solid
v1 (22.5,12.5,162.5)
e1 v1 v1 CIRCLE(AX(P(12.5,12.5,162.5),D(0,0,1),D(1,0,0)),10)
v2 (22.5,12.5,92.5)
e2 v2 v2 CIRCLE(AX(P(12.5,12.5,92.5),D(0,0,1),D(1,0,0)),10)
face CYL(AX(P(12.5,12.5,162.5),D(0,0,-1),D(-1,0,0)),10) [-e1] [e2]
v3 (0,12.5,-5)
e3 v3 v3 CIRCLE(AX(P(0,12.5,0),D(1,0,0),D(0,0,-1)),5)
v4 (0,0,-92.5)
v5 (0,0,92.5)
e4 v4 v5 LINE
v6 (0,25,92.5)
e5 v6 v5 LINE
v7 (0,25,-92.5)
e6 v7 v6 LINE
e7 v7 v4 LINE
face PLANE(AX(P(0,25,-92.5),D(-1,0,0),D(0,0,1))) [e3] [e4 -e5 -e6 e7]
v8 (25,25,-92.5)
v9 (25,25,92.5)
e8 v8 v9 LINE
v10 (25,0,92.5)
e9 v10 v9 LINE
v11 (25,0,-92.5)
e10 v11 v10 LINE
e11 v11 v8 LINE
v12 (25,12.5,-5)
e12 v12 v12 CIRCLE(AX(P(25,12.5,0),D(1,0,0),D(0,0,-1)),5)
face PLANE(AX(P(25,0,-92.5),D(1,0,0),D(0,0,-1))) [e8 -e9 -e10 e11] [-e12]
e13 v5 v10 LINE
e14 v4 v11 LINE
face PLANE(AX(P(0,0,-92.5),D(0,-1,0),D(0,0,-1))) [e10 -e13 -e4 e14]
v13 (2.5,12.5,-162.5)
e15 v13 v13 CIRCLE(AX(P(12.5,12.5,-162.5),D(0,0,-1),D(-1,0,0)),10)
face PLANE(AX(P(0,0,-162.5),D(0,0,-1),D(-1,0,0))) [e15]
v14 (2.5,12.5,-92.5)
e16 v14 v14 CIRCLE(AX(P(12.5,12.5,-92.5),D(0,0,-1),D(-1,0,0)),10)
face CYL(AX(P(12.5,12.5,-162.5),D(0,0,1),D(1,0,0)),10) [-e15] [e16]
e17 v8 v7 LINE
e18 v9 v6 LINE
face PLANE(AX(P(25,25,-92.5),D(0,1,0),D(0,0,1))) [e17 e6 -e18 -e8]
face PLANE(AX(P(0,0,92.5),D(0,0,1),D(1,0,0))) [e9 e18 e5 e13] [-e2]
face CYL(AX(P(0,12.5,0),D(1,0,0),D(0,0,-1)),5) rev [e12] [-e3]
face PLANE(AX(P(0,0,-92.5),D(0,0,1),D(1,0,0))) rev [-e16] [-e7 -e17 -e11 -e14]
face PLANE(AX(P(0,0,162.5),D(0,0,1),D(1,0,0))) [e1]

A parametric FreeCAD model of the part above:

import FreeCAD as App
import Part
import Sketcher
from FreeCAD import Vector


def add_polygon(sketch, points):
    """Adds a closed chain of lines whose ends are joined by coincident constraints."""
    first, n = sketch.GeometryCount, len(points)
    for a, b in zip(points, points[1:] + points[:1]):
        sketch.addGeometry(Part.LineSegment(App.Vector(*a, 0), App.Vector(*b, 0)), False)
    for i in range(n):
        sketch.addConstraint(Sketcher.Constraint("Coincident", first + i, 2, first + (i + 1) % n, 1))

doc = App.newDocument("Part")
body = doc.addObject("PartDesign::Body", "Body")

# Sketch on XY plane
sketch1 = body.newObject("Sketcher::SketchObject", "Sketch")
sketch1.AttachmentSupport = (doc.getObject("XY_Plane"), [""])
sketch1.MapMode = "FlatFace"
add_polygon(sketch1, [(0, 25), (0, 0), (25, 0), (25, 25)])  # lines 0-3
sketch1.addConstraint(Sketcher.Constraint("Vertical", 0))
sketch1.addConstraint(Sketcher.Constraint("Horizontal", 1))
sketch1.addConstraint(Sketcher.Constraint("Vertical", 2))
sketch1.addConstraint(Sketcher.Constraint("Horizontal", 3))
sketch1.addConstraint(Sketcher.Constraint("Coincident", 0, 2, -1, 1))
sketch1.addConstraint(Sketcher.Constraint("Equal", 3, 0))
sketch1.addConstraint(Sketcher.Constraint("DistanceX", 1, 1, 1, 2, 25.0))
pad1 = body.newObject("PartDesign::Pad", "Pad")
pad1.Profile = sketch1
pad1.Type = "TwoLengths"
pad1.Length = 92.5
pad1.Length2 = 92.5

# Sketch on YZ plane
sketch2 = body.newObject("Sketcher::SketchObject", "Sketch001")
sketch2.AttachmentSupport = (doc.getObject("YZ_Plane"), [""])
sketch2.MapMode = "FlatFace"
sketch2.AttachmentOffset = App.Placement(Vector(0, 0, 25), App.Rotation())
sketch2.addGeometry(Part.Circle(Vector(12, 0, 0), Vector(0, 0, 1), 5), False)
sketch2.addConstraint(Sketcher.Constraint("PointOnObject", 0, 3, -1))
sketch2.addConstraint(Sketcher.Constraint("Diameter", 0, 10.0))
sketch2.addConstraint(Sketcher.Constraint("DistanceX", -1, 1, 0, 3, 12.5))
pocket1 = body.newObject("PartDesign::Pocket", "Pocket")
pocket1.Profile = sketch2
pocket1.Type = "ThroughAll"

# Sketch on XY plane
sketch3 = body.newObject("Sketcher::SketchObject", "Sketch002")
sketch3.AttachmentSupport = (doc.getObject("XY_Plane"), [""])
sketch3.MapMode = "FlatFace"
sketch3.AttachmentOffset = App.Placement(Vector(0, 0, 92.5), App.Rotation())
sketch3.addGeometry(Part.Circle(Vector(12, 12, 0), Vector(0, 0, 1), 10), False)
sketch3.addConstraint(Sketcher.Constraint("Diameter", 0, 20.0))
sketch3.addConstraint(Sketcher.Constraint("DistanceX", -1, 1, 0, 3, 12.5))
sketch3.addConstraint(Sketcher.Constraint("DistanceY", -1, 1, 0, 3, 12.5))
pad2 = body.newObject("PartDesign::Pad", "Pad001")
pad2.Profile = sketch3
pad2.Length = 70

# Sketch on XY plane
sketch4 = body.newObject("Sketcher::SketchObject", "Sketch003")
sketch4.AttachmentSupport = (doc.getObject("XY_Plane"), [""])
sketch4.MapMode = "FlatFace"
sketch4.AttachmentOffset = App.Placement(Vector(0, 0, -162.5), App.Rotation())
sketch4.addGeometry(Part.Circle(Vector(12, 12, 0), Vector(0, 0, 1), 10), False)
sketch4.addConstraint(Sketcher.Constraint("Diameter", 0, 20.0))
sketch4.addConstraint(Sketcher.Constraint("DistanceX", -1, 1, 0, 3, 12.5))
sketch4.addConstraint(Sketcher.Constraint("DistanceY", -1, 1, 0, 3, 12.5))
pad3 = body.newObject("PartDesign::Pad", "Pad002")
pad3.Profile = sketch4
pad3.Length = 70

doc.recompute()
